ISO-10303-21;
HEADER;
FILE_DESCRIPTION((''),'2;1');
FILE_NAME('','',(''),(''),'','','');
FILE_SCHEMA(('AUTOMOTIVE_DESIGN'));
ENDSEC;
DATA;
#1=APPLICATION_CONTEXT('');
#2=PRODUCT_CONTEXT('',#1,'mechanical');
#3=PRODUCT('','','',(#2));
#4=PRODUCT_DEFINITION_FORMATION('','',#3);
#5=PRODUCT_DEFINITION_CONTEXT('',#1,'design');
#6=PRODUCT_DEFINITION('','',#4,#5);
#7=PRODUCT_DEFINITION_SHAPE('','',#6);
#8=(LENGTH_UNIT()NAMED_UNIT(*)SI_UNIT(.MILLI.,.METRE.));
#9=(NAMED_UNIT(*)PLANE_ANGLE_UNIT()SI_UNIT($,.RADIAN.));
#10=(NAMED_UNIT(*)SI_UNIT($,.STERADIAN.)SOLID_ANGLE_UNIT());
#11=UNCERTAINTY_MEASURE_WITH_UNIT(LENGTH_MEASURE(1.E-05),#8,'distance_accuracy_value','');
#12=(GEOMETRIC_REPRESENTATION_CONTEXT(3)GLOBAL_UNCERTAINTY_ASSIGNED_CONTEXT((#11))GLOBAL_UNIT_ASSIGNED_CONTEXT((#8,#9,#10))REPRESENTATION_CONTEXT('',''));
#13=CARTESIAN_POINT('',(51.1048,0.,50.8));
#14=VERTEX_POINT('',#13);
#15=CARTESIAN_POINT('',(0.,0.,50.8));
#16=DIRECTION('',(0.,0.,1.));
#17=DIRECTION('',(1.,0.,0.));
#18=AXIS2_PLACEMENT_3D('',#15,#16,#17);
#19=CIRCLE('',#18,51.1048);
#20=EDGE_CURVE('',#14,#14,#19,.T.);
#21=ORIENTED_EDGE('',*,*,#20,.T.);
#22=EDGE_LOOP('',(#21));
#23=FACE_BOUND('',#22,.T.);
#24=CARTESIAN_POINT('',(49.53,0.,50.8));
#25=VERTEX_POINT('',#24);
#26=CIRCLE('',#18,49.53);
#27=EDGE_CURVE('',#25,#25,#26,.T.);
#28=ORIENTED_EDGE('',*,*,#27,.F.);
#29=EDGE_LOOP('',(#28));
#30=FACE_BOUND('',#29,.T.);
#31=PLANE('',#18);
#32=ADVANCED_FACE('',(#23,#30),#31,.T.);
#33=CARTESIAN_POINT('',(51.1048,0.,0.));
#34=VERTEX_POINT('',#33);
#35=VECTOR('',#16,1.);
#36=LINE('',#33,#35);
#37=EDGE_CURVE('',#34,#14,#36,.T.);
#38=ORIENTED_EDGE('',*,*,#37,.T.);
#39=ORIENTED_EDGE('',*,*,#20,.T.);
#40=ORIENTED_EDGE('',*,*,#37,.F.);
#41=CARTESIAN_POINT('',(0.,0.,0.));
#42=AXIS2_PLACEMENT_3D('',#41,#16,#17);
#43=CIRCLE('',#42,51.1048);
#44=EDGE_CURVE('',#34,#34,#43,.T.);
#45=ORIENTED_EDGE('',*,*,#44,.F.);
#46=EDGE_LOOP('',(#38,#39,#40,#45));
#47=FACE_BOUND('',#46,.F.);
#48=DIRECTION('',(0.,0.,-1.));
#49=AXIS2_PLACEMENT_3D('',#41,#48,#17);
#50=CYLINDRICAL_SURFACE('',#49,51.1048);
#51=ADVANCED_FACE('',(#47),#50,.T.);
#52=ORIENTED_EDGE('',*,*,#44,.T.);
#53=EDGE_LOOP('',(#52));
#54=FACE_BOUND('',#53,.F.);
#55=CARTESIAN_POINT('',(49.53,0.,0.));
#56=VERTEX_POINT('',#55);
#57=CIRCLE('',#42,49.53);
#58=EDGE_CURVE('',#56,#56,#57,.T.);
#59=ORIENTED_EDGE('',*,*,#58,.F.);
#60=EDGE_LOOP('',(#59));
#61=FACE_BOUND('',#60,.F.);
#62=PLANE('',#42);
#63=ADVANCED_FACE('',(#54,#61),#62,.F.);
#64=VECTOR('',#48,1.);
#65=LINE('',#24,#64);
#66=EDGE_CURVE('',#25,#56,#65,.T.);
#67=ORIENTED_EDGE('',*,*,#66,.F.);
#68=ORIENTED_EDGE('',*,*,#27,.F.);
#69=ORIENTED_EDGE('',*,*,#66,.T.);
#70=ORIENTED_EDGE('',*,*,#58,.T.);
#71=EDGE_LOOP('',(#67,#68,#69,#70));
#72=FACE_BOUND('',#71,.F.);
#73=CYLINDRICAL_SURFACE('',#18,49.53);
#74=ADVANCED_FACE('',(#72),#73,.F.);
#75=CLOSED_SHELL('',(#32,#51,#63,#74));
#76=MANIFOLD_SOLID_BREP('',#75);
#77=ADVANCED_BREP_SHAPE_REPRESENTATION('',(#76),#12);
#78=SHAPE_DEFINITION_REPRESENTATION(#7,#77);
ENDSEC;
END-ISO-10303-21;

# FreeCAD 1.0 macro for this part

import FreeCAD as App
import Part
import Sketcher
Q = App.Units.Quantity

doc = App.newDocument("Part")
body = doc.addObject("PartDesign::Body", "Body")

sketch1 = body.newObject("Sketcher::SketchObject", "Sketch")
sketch1.AttachmentSupport = (doc.getObject("XY_Plane"), [""])
sketch1.MapMode = "FlatFace"
sketch1.addGeometry(Part.Circle(App.Vector(0, 0, 0), App.Vector(0, 0, 1), 51), False)
sketch1.addConstraint([
    Sketcher.Constraint("Coincident", 0, 3, -1, 1),
    Sketcher.Constraint("Diameter", 0, Q("4.024 in")),
])
pad1 = body.newObject("PartDesign::Pad", "Pad")
pad1.Profile = sketch1
pad1.Length = Q("2 in")

sketch2 = body.newObject("Sketcher::SketchObject", "Sketch001")
sketch2.AttachmentSupport = (doc.getObject("XY_Plane"), [""])
sketch2.MapMode = "FlatFace"
sketch2.AttachmentOffset = App.Placement(App.Vector(0, 0, 2 * 25.4), App.Rotation())
sketch2.addGeometry(Part.Circle(App.Vector(0, 0, 0), App.Vector(0, 0, 1), 50), False)
sketch2.addConstraint([
    Sketcher.Constraint("Coincident", 0, 3, -1, 1),
    Sketcher.Constraint("Diameter", 0, Q("3.9 in")),
])
pocket1 = body.newObject("PartDesign::Pocket", "Pocket")
pocket1.Profile = sketch2
pocket1.Type = "ThroughAll"

doc.recompute()
